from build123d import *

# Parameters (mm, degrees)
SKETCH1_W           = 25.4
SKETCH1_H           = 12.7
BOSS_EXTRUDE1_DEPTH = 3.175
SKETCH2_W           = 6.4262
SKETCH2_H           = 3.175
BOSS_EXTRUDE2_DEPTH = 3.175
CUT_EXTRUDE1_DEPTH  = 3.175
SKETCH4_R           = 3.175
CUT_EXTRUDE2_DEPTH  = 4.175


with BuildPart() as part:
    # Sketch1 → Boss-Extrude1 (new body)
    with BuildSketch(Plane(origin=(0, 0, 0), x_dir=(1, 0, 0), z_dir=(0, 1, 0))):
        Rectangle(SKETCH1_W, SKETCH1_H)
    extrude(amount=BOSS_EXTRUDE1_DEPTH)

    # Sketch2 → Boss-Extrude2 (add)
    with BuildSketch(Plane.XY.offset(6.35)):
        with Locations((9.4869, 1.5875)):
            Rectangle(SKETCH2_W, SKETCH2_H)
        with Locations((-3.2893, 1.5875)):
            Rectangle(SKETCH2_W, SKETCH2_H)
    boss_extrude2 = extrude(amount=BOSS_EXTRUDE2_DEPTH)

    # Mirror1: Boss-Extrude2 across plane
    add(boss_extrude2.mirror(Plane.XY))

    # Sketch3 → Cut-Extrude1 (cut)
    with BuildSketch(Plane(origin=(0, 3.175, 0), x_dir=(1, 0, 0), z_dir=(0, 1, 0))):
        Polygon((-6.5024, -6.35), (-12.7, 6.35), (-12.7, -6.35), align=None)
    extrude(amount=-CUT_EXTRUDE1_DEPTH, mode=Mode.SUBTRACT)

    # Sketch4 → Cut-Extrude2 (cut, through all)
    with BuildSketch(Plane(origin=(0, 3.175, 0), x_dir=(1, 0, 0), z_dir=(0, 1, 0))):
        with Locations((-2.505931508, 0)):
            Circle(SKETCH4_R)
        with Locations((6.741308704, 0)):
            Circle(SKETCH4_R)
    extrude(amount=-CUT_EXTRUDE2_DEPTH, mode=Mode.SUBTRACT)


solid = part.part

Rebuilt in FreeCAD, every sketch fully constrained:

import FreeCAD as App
import Part
import Sketcher
from FreeCAD import Vector
Q = App.Units.Quantity


def add_polygon(sketch, points):
    """Adds a closed chain of lines whose ends are joined by coincident constraints."""
    first, n = sketch.GeometryCount, len(points)
    for a, b in zip(points, points[1:] + points[:1]):
        sketch.addGeometry(Part.LineSegment(App.Vector(*a, 0), App.Vector(*b, 0)), False)
    for i in range(n):
        sketch.addConstraint(Sketcher.Constraint("Coincident", first + i, 2, first + (i + 1) % n, 1))

doc = App.newDocument("Part")
body = doc.addObject("PartDesign::Body", "Body")

sketch1 = body.newObject("Sketcher::SketchObject", "Sketch")
sketch1.AttachmentSupport = (doc.getObject("XZ_Plane"), [""])
sketch1.MapMode = "FlatFace"
add_polygon(sketch1, [(-13, -6), (-13, 6), (13, 6), (13, -6)])
sketch1.addConstraint([
    Sketcher.Constraint("Vertical", 0),
    Sketcher.Constraint("Horizontal", 1),
    Sketcher.Constraint("Vertical", 2),
    Sketcher.Constraint("Horizontal", 3),
    Sketcher.Constraint("Symmetric", 0, 2, 2, 2, -1, 1),
    Sketcher.Constraint("DistanceX", 1, 1, 1, 2, Q("1 in")),
    Sketcher.Constraint("DistanceY", 0, 1, 0, 2, Q("0.5 in")),
])
pad1 = body.newObject("PartDesign::Pad", "Pad")
pad1.Profile = sketch1
pad1.Length = Q("0.125 in")
pad1.Reversed = True

sketch2 = body.newObject("Sketcher::SketchObject", "Sketch001")
sketch2.AttachmentSupport = (doc.getObject("XY_Plane"), [""])
sketch2.MapMode = "FlatFace"
sketch2.AttachmentOffset = App.Placement(Vector(0, 0, 0.25 * 25.4), App.Rotation())
add_polygon(sketch2, [(6.3, 3.2), (6.3, 0), (12.7, 0), (12.7, 3.2)])
add_polygon(sketch2, [(-6.5, 3.2), (-6.5, 0), (-0.1, 0), (-0.1, 3.2)])
sketch2.addConstraint([
    Sketcher.Constraint("Vertical", 0),
    Sketcher.Constraint("Horizontal", 1),
    Sketcher.Constraint("Vertical", 2),
    Sketcher.Constraint("Horizontal", 3),
    Sketcher.Constraint("Vertical", 4),
    Sketcher.Constraint("Horizontal", 5),
    Sketcher.Constraint("Vertical", 6),
    Sketcher.Constraint("Horizontal", 7),
    Sketcher.Constraint("PointOnObject", 0, 2, -1),
    Sketcher.Constraint("PointOnObject", 4, 2, -1),
    Sketcher.Constraint("Horizontal", 3, 2, 6, 2),
    Sketcher.Constraint("Equal", 3, 5),
    Sketcher.Constraint("DistanceX", -1, 1, 1, 2, Q("0.5 in")),
    Sketcher.Constraint("DistanceX", 1, 1, 1, 2, Q("0.253 in")),
    Sketcher.Constraint("DistanceY", 0, 2, 0, 1, Q("0.125 in")),
    Sketcher.Constraint("DistanceX", 5, 2, 0, 2, Q("0.25 in")),
])
pad2 = body.newObject("PartDesign::Pad", "Pad001")
pad2.Profile = sketch2
pad2.Length = Q("0.125 in")
doc.recompute()

mirrored = body.newObject("PartDesign::Mirrored", "Mirrored")
mirrored.Originals = [pad2]
mirrored.MirrorPlane = (doc.getObject("XY_Plane"), [""])
body.Tip = mirrored

sketch3 = body.newObject("Sketcher::SketchObject", "Sketch002")
sketch3.AttachmentSupport = (doc.getObject("XZ_Plane"), [""])
sketch3.MapMode = "FlatFace"
sketch3.AttachmentOffset = App.Placement(Vector(0, 0, -0.125 * 25.4), App.Rotation())
add_polygon(sketch3, [(-7, 6), (-13, -6), (-13, 6)])
sketch3.addConstraint([
    Sketcher.Constraint("Vertical", 1),
    Sketcher.Constraint("Horizontal", 2),
    Sketcher.Constraint("DistanceY", 1, 1, 1, 2, Q("0.5 in")),
    Sketcher.Constraint("DistanceX", 0, 2, -1, 1, Q("0.5 in")),
    Sketcher.Constraint("DistanceX", 2, 1, 2, 2, Q("0.244 in")),
    Sketcher.Constraint("DistanceY", 0, 2, -1, 1, Q("0.25 in")),
])
pocket1 = body.newObject("PartDesign::Pocket", "Pocket")
pocket1.Profile = sketch3
pocket1.Length = Q("0.125 in")
pocket1.Reversed = True

sketch4 = body.newObject("Sketcher::SketchObject", "Sketch003")
sketch4.AttachmentSupport = (doc.getObject("XZ_Plane"), [""])
sketch4.MapMode = "FlatFace"
sketch4.AttachmentOffset = App.Placement(Vector(0, 0, -0.125 * 25.4), App.Rotation())
sketch4.addGeometry([
    Part.Circle(Vector(-2.5, 0, 0), Vector(0, 0, 1), 3.2),
    Part.Circle(Vector(6.7, 0, 0), Vector(0, 0, 1), 3.2),
], False)
sketch4.addConstraint([
    Sketcher.Constraint("Equal", 0, 1),
    Sketcher.Constraint("PointOnObject", 0, 3, -1),
    Sketcher.Constraint("PointOnObject", 1, 3, -1),
    Sketcher.Constraint("Diameter", 0, Q("0.25 in")),
    Sketcher.Constraint("DistanceX", 0, 3, -1, 1, 2.505932),
    Sketcher.Constraint("DistanceX", -1, 1, 1, 3, 6.741309),
])
pocket2 = body.newObject("PartDesign::Pocket", "Pocket001")
pocket2.Profile = sketch4
pocket2.Type = "ThroughAll"
pocket2.Reversed = True

doc.recompute()
